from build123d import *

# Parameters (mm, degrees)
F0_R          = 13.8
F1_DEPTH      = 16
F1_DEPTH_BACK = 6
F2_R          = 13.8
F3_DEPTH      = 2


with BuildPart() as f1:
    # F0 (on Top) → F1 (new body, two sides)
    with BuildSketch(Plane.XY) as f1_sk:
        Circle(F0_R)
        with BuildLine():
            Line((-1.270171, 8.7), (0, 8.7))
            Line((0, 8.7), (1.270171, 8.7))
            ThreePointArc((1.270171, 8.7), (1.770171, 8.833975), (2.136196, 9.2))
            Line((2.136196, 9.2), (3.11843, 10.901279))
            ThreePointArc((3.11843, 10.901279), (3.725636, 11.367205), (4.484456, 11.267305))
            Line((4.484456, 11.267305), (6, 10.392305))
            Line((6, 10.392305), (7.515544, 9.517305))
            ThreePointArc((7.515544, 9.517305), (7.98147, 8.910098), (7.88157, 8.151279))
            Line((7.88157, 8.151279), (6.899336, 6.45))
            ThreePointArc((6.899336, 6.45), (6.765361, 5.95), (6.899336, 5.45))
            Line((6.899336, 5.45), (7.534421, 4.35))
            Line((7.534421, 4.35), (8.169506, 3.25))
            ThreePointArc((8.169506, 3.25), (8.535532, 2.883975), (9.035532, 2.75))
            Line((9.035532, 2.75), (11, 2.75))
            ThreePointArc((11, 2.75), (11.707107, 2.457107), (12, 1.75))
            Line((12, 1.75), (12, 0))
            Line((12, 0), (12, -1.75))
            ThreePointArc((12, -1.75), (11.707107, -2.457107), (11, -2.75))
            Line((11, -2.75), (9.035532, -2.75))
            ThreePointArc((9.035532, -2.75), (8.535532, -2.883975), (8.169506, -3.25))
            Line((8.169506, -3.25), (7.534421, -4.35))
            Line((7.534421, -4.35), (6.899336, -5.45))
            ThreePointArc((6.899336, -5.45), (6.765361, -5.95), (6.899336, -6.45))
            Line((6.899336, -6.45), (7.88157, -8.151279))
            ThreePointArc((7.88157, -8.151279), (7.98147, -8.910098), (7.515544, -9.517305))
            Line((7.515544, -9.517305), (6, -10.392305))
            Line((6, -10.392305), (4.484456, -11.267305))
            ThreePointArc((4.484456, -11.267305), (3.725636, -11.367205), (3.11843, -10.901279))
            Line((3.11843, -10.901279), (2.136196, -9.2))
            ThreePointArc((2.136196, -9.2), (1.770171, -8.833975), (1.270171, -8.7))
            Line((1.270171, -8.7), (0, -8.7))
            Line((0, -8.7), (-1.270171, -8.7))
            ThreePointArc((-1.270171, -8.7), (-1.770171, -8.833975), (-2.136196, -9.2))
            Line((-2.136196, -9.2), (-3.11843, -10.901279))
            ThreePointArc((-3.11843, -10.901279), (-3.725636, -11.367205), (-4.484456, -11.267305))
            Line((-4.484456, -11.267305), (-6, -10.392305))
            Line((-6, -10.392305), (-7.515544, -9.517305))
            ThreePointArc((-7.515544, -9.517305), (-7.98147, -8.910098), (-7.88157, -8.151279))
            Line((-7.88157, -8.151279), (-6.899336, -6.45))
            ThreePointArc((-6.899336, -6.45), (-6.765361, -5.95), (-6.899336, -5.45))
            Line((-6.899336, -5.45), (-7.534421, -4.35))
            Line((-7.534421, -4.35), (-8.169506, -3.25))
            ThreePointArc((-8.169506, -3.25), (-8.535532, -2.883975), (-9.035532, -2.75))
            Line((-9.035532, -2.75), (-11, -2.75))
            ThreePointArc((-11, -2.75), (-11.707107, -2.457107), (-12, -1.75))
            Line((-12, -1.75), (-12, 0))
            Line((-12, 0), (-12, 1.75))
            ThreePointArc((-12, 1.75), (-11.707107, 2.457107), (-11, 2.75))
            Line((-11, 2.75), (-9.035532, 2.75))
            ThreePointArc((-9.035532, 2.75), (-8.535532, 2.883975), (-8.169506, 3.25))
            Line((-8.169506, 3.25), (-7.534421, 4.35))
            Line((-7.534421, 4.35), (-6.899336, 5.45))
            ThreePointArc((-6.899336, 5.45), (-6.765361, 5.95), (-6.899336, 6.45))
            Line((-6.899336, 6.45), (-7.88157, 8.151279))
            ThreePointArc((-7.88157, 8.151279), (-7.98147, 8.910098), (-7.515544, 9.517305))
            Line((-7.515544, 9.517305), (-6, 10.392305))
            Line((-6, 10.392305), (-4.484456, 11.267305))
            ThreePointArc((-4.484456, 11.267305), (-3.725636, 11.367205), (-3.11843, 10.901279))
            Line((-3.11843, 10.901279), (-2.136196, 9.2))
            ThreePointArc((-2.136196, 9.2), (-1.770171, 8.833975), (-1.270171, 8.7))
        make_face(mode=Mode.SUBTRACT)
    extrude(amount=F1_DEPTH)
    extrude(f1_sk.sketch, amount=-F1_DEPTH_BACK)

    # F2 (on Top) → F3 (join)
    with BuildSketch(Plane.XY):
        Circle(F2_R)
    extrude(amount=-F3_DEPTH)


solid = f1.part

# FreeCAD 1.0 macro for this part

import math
import FreeCAD as App
import Part
import Sketcher
from FreeCAD import Vector
Q = App.Units.Quantity

doc = App.newDocument("Part")
body = doc.addObject("PartDesign::Body", "Body")

# Sketch on XY plane
sketch1 = body.newObject("Sketcher::SketchObject", "Sketch")
sketch1.AttachmentSupport = (doc.getObject("XY_Plane"), [""])
sketch1.MapMode = "FlatFace"
sketch1.addGeometry(Part.Circle(Vector(0, 0, 0), Vector(0, 0, 1), 13.8), False)
sketch1.addGeometry(Part.ArcOfCircle(Part.Circle(Vector(-1.3, 9.7, 0), Vector(0, 0, 1), 1), math.radians(-150), math.radians(-90)), False)
sketch1.addGeometry(Part.LineSegment(Vector(-1.3, 8.7, 0), Vector(1.3, 8.7, 0)), False)
sketch1.addGeometry(Part.ArcOfCircle(Part.Circle(Vector(1.3, 9.7, 0), Vector(0, 0, 1), 1), math.radians(-90), math.radians(-30)), False)
sketch1.addGeometry(Part.LineSegment(Vector(2.1, 9.2, 0), Vector(3.1, 10.9, 0)), False)
sketch1.addGeometry(Part.ArcOfCircle(Part.Circle(Vector(4, 10.4, 0), Vector(0, 0, 1), 1), math.radians(60), math.radians(150)), False)
sketch1.addGeometry(Part.LineSegment(Vector(4.5, 11.3, 0), Vector(7.5, 9.5, 0)), False)
sketch1.addGeometry(Part.ArcOfCircle(Part.Circle(Vector(7, 8.7, 0), Vector(0, 0, 1), 1), math.radians(-30), math.radians(60)), False)
sketch1.addGeometry(Part.LineSegment(Vector(7.9, 8.2, 0), Vector(6.9, 6.5, 0)), False)
sketch1.addGeometry(Part.ArcOfCircle(Part.Circle(Vector(7.8, 6, 0), Vector(0, 0, 1), 1), math.radians(150), math.radians(210)), False)
sketch1.addGeometry(Part.LineSegment(Vector(6.9, 5.5, 0), Vector(8.2, 3.2, 0)), False)
sketch1.addGeometry(Part.ArcOfCircle(Part.Circle(Vector(9, 3.8, 0), Vector(0, 0, 1), 1), math.radians(-150), math.radians(-90)), False)
sketch1.addGeometry(Part.LineSegment(Vector(9, 2.8, 0), Vector(11, 2.8, 0)), False)
sketch1.addGeometry(Part.ArcOfCircle(Part.Circle(Vector(11, 1.8, 0), Vector(0, 0, 1), 1), math.radians(0), math.radians(90)), False)
sketch1.addGeometry(Part.LineSegment(Vector(12, 1.8, 0), Vector(12, -1.8, 0)), False)
sketch1.addGeometry(Part.ArcOfCircle(Part.Circle(Vector(11, -1.8, 0), Vector(0, 0, 1), 1), math.radians(-90), math.radians(0)), False)
sketch1.addGeometry(Part.LineSegment(Vector(11, -2.8, 0), Vector(9, -2.8, 0)), False)
sketch1.addGeometry(Part.ArcOfCircle(Part.Circle(Vector(9, -3.8, 0), Vector(0, 0, 1), 1), math.radians(90), math.radians(150)), False)
sketch1.addGeometry(Part.LineSegment(Vector(8.2, -3.2, 0), Vector(6.9, -5.5, 0)), False)
sketch1.addGeometry(Part.ArcOfCircle(Part.Circle(Vector(7.8, -6, 0), Vector(0, 0, 1), 1), math.radians(150), math.radians(210)), False)
sketch1.addGeometry(Part.LineSegment(Vector(6.9, -6.5, 0), Vector(7.9, -8.2, 0)), False)
sketch1.addGeometry(Part.ArcOfCircle(Part.Circle(Vector(7, -8.7, 0), Vector(0, 0, 1), 1), math.radians(-60), math.radians(30)), False)
sketch1.addGeometry(Part.LineSegment(Vector(7.5, -9.5, 0), Vector(4.5, -11.3, 0)), False)
sketch1.addGeometry(Part.ArcOfCircle(Part.Circle(Vector(4, -10.4, 0), Vector(0, 0, 1), 1), math.radians(-150), math.radians(-60)), False)
sketch1.addGeometry(Part.LineSegment(Vector(3.1, -10.9, 0), Vector(2.1, -9.2, 0)), False)
sketch1.addGeometry(Part.ArcOfCircle(Part.Circle(Vector(1.3, -9.7, 0), Vector(0, 0, 1), 1), math.radians(30), math.radians(90)), False)
sketch1.addGeometry(Part.LineSegment(Vector(1.3, -8.7, 0), Vector(-1.3, -8.7, 0)), False)
sketch1.addGeometry(Part.ArcOfCircle(Part.Circle(Vector(-1.3, -9.7, 0), Vector(0, 0, 1), 1), math.radians(90), math.radians(150)), False)
sketch1.addGeometry(Part.LineSegment(Vector(-2.1, -9.2, 0), Vector(-3.1, -10.9, 0)), False)
sketch1.addGeometry(Part.ArcOfCircle(Part.Circle(Vector(-4, -10.4, 0), Vector(0, 0, 1), 1), math.radians(-120), math.radians(-30)), False)
sketch1.addGeometry(Part.LineSegment(Vector(-4.5, -11.3, 0), Vector(-7.5, -9.5, 0)), False)
sketch1.addGeometry(Part.ArcOfCircle(Part.Circle(Vector(-7, -8.7, 0), Vector(0, 0, 1), 1), math.radians(150), math.radians(240)), False)
sketch1.addGeometry(Part.LineSegment(Vector(-7.9, -8.2, 0), Vector(-6.9, -6.5, 0)), False)
sketch1.addGeometry(Part.ArcOfCircle(Part.Circle(Vector(-7.8, -6, 0), Vector(0, 0, 1), 1), math.radians(-30), math.radians(30)), False)
sketch1.addGeometry(Part.LineSegment(Vector(-6.9, -5.5, 0), Vector(-8.2, -3.2, 0)), False)
sketch1.addGeometry(Part.ArcOfCircle(Part.Circle(Vector(-9, -3.8, 0), Vector(0, 0, 1), 1), math.radians(30), math.radians(90)), False)
sketch1.addGeometry(Part.LineSegment(Vector(-9, -2.8, 0), Vector(-11, -2.8, 0)), False)
sketch1.addGeometry(Part.ArcOfCircle(Part.Circle(Vector(-11, -1.8, 0), Vector(0, 0, 1), 1), math.radians(180), math.radians(270)), False)
sketch1.addGeometry(Part.LineSegment(Vector(-12, -1.8, 0), Vector(-12, 1.8, 0)), False)
sketch1.addGeometry(Part.ArcOfCircle(Part.Circle(Vector(-11, 1.8, 0), Vector(0, 0, 1), 1), math.radians(90), math.radians(180)), False)
sketch1.addGeometry(Part.LineSegment(Vector(-11, 2.8, 0), Vector(-9, 2.8, 0)), False)
sketch1.addGeometry(Part.ArcOfCircle(Part.Circle(Vector(-9, 3.8, 0), Vector(0, 0, 1), 1), math.radians(-90), math.radians(-30)), False)
sketch1.addGeometry(Part.LineSegment(Vector(-8.2, 3.2, 0), Vector(-6.9, 5.5, 0)), False)
sketch1.addGeometry(Part.ArcOfCircle(Part.Circle(Vector(-7.8, 6, 0), Vector(0, 0, 1), 1), math.radians(-30), math.radians(30)), False)
sketch1.addGeometry(Part.LineSegment(Vector(-6.9, 6.5, 0), Vector(-7.9, 8.2, 0)), False)
sketch1.addGeometry(Part.ArcOfCircle(Part.Circle(Vector(-7, 8.7, 0), Vector(0, 0, 1), 1), math.radians(120), math.radians(210)), False)
sketch1.addGeometry(Part.LineSegment(Vector(-7.5, 9.5, 0), Vector(-4.5, 11.3, 0)), False)
sketch1.addGeometry(Part.ArcOfCircle(Part.Circle(Vector(-4, 10.4, 0), Vector(0, 0, 1), 1), math.radians(30), math.radians(120)), False)
sketch1.addGeometry(Part.LineSegment(Vector(-3.1, 10.9, 0), Vector(-2.1, 9.2, 0)), False)
sketch1.addConstraint(Sketcher.Constraint("Tangent", 1, 2, 2, 1))
sketch1.addConstraint(Sketcher.Constraint("Tangent", 2, 2, 3, 1))
sketch1.addConstraint(Sketcher.Constraint("Tangent", 3, 2, 4, 1))
sketch1.addConstraint(Sketcher.Constraint("Tangent", 4, 2, 5, 2))
sketch1.addConstraint(Sketcher.Constraint("Tangent", 5, 1, 6, 1))
sketch1.addConstraint(Sketcher.Constraint("Tangent", 6, 2, 7, 2))
sketch1.addConstraint(Sketcher.Constraint("Tangent", 7, 1, 8, 1))
sketch1.addConstraint(Sketcher.Constraint("Tangent", 8, 2, 9, 1))
sketch1.addConstraint(Sketcher.Constraint("Tangent", 9, 2, 10, 1))
sketch1.addConstraint(Sketcher.Constraint("Coincident", 10, 2, 11, 1))
sketch1.addConstraint(Sketcher.Constraint("Tangent", 11, 2, 12, 1))
sketch1.addConstraint(Sketcher.Constraint("Tangent", 12, 2, 13, 2))
sketch1.addConstraint(Sketcher.Constraint("Tangent", 13, 1, 14, 1))
sketch1.addConstraint(Sketcher.Constraint("Tangent", 14, 2, 15, 2))
sketch1.addConstraint(Sketcher.Constraint("Tangent", 15, 1, 16, 1))
sketch1.addConstraint(Sketcher.Constraint("Tangent", 16, 2, 17, 1))
sketch1.addConstraint(Sketcher.Constraint("Coincident", 17, 2, 18, 1))
sketch1.addConstraint(Sketcher.Constraint("Tangent", 18, 2, 19, 1))
sketch1.addConstraint(Sketcher.Constraint("Tangent", 19, 2, 20, 1))
sketch1.addConstraint(Sketcher.Constraint("Tangent", 20, 2, 21, 2))
sketch1.addConstraint(Sketcher.Constraint("Tangent", 21, 1, 22, 1))
sketch1.addConstraint(Sketcher.Constraint("Tangent", 22, 2, 23, 2))
sketch1.addConstraint(Sketcher.Constraint("Tangent", 23, 1, 24, 1))
sketch1.addConstraint(Sketcher.Constraint("Tangent", 24, 2, 25, 1))
sketch1.addConstraint(Sketcher.Constraint("Tangent", 25, 2, 26, 1))
sketch1.addConstraint(Sketcher.Constraint("Tangent", 26, 2, 27, 1))
sketch1.addConstraint(Sketcher.Constraint("Tangent", 27, 2, 28, 1))
sketch1.addConstraint(Sketcher.Constraint("Tangent", 28, 2, 29, 2))
sketch1.addConstraint(Sketcher.Constraint("Tangent", 29, 1, 30, 1))
sketch1.addConstraint(Sketcher.Constraint("Tangent", 30, 2, 31, 2))
sketch1.addConstraint(Sketcher.Constraint("Tangent", 31, 1, 32, 1))
sketch1.addConstraint(Sketcher.Constraint("Tangent", 32, 2, 33, 1))
sketch1.addConstraint(Sketcher.Constraint("Tangent", 33, 2, 34, 1))
sketch1.addConstraint(Sketcher.Constraint("Coincident", 34, 2, 35, 1))
sketch1.addConstraint(Sketcher.Constraint("Tangent", 35, 2, 36, 1))
sketch1.addConstraint(Sketcher.Constraint("Tangent", 36, 2, 37, 2))
sketch1.addConstraint(Sketcher.Constraint("Tangent", 37, 1, 38, 1))
sketch1.addConstraint(Sketcher.Constraint("Tangent", 38, 2, 39, 2))
sketch1.addConstraint(Sketcher.Constraint("Tangent", 39, 1, 40, 1))
sketch1.addConstraint(Sketcher.Constraint("Tangent", 40, 2, 41, 1))
sketch1.addConstraint(Sketcher.Constraint("Coincident", 41, 2, 42, 1))
sketch1.addConstraint(Sketcher.Constraint("Tangent", 42, 2, 43, 1))
sketch1.addConstraint(Sketcher.Constraint("Tangent", 43, 2, 44, 1))
sketch1.addConstraint(Sketcher.Constraint("Tangent", 44, 2, 45, 2))
sketch1.addConstraint(Sketcher.Constraint("Tangent", 45, 1, 46, 1))
sketch1.addConstraint(Sketcher.Constraint("Tangent", 46, 2, 47, 2))
sketch1.addConstraint(Sketcher.Constraint("Tangent", 47, 1, 48, 1))
sketch1.addConstraint(Sketcher.Constraint("Tangent", 48, 2, 1, 1))
sketch1.addConstraint(Sketcher.Constraint("Horizontal", 2))
sketch1.addConstraint(Sketcher.Constraint("Horizontal", 12))
sketch1.addConstraint(Sketcher.Constraint("Vertical", 14))
sketch1.addConstraint(Sketcher.Constraint("Horizontal", 16))
sketch1.addConstraint(Sketcher.Constraint("Horizontal", 26))
sketch1.addConstraint(Sketcher.Constraint("Horizontal", 36))
sketch1.addConstraint(Sketcher.Constraint("Vertical", 38))
sketch1.addConstraint(Sketcher.Constraint("Horizontal", 40))
sketch1.addConstraint(Sketcher.Constraint("Coincident", 0, 3, -1, 1))
sketch1.addConstraint(Sketcher.Constraint("Equal", 1, 3))
sketch1.addConstraint(Sketcher.Constraint("Equal", 3, 5))
sketch1.addConstraint(Sketcher.Constraint("Equal", 5, 7))
sketch1.addConstraint(Sketcher.Constraint("Equal", 9, 13))
sketch1.addConstraint(Sketcher.Constraint("Equal", 13, 15))
sketch1.addConstraint(Sketcher.Constraint("Equal", 11, 17))
sketch1.addConstraint(Sketcher.Constraint("Equal", 15, 19))
sketch1.addConstraint(Sketcher.Constraint("Equal", 7, 21))
sketch1.addConstraint(Sketcher.Constraint("Equal", 21, 23))
sketch1.addConstraint(Sketcher.Constraint("Equal", 23, 25))
sketch1.addConstraint(Sketcher.Constraint("Equal", 25, 27))
sketch1.addConstraint(Sketcher.Constraint("Equal", 27, 29))
sketch1.addConstraint(Sketcher.Constraint("Equal", 29, 31))
sketch1.addConstraint(Sketcher.Constraint("Equal", 19, 33))
sketch1.addConstraint(Sketcher.Constraint("Equal", 17, 35))
sketch1.addConstraint(Sketcher.Constraint("Equal", 33, 37))
sketch1.addConstraint(Sketcher.Constraint("Equal", 37, 39))
sketch1.addConstraint(Sketcher.Constraint("Equal", 35, 41))
sketch1.addConstraint(Sketcher.Constraint("Equal", 39, 43))
sketch1.addConstraint(Sketcher.Constraint("Equal", 31, 45))
sketch1.addConstraint(Sketcher.Constraint("Equal", 45, 47))
sketch1.addConstraint(Sketcher.Constraint("Symmetric", 1, 3, 25, 3, -1, 1))
sketch1.addConstraint(Sketcher.Constraint("Symmetric", 5, 3, 29, 3, -1, 1))
sketch1.addConstraint(Sketcher.Constraint("Symmetric", 7, 3, 31, 3, -1, 1))
sketch1.addConstraint(Sketcher.Constraint("Symmetric", 9, 3, 33, 3, -1, 1))
sketch1.addConstraint(Sketcher.Constraint("Symmetric", 11, 3, 35, 3, -1, 1))
sketch1.addConstraint(Sketcher.Constraint("Symmetric", 15, 3, 39, 3, -1, 1))
sketch1.addConstraint(Sketcher.Constraint("Symmetric", 19, 3, 43, 3, -1, 1))
sketch1.addConstraint(Sketcher.Constraint("Symmetric", 21, 3, 45, 3, -1, 1))
sketch1.addConstraint(Sketcher.Constraint("Symmetric", 23, 3, 47, 3, -1, 1))
sketch1.addConstraint(Sketcher.Constraint("Symmetric", 17, 2, 41, 2, -1, 1))
sketch1.addConstraint(Sketcher.Constraint("Symmetric", 23, 3, 29, 3, -2))
sketch1.addConstraint(Sketcher.Constraint("Symmetric", 21, 3, 31, 3, -2))
sketch1.addConstraint(Sketcher.Constraint("Symmetric", 19, 3, 33, 3, -2))
sketch1.addConstraint(Sketcher.Constraint("Symmetric", 17, 3, 35, 3, -2))
sketch1.addConstraint(Sketcher.Constraint("Perpendicular", 4, 6))
sketch1.addConstraint(Sketcher.Constraint("Perpendicular", 6, 8))
sketch1.addConstraint(Sketcher.Constraint("Parallel", 8, 18))
sketch1.addConstraint(Sketcher.Constraint("Perpendicular", 22, 24))
sketch1.addConstraint(Sketcher.Constraint("Parallel", 18, 28))
sketch1.addConstraint(Sketcher.Constraint("Horizontal", 17, 2, 34, 2))
sketch1.addConstraint(Sketcher.Constraint("Horizontal", 10, 2, 41, 2))
sketch1.addConstraint(Sketcher.Constraint("Equal", 4, 8))
sketch1.addConstraint(Sketcher.Constraint("Radius", 1, Q("1.000001 mm")))
sketch1.addConstraint(Sketcher.Constraint("Radius", 13, Q("0.999999 mm")))
sketch1.addConstraint(Sketcher.Constraint("Diameter", 0, Q("27.6 mm")))
sketch1.addConstraint(Sketcher.Constraint("Angle", 4, Q("59.999997 deg")))
sketch1.addConstraint(Sketcher.Constraint("DistanceY", 14, 2, 14, 1, Q("3.5 mm")))
sketch1.addConstraint(Sketcher.Constraint("DistanceX", -1, 1, 13, 3, Q("11.000001 mm")))
sketch1.addConstraint(Sketcher.Constraint("Distance", 6, Q("3.499999 mm")))
sketch1.addConstraint(Sketcher.Constraint("DistanceY", -1, 1, 1, 3, Q("9.700001 mm")))
sketch1.addConstraint(Sketcher.Constraint("DistanceY", -1, 1, 10, 2, Q("3.25 mm")))
sketch1.addConstraint(Sketcher.Constraint("Radius", 11, Q("1.000004 mm")))
sketch1.addConstraint(Sketcher.Constraint("DistanceX", 2, 1, 2, 2, Q("2.540342 mm")))
sketch1.addConstraint(Sketcher.Constraint("DistanceY", -1, 1, 5, 3, Q("10.401279 mm")))
pad1 = body.newObject("PartDesign::Pad", "Pad")
pad1.Profile = sketch1
pad1.Type = "TwoLengths"
pad1.Length = 16
pad1.Length2 = 6

# Sketch on XY plane
sketch2 = body.newObject("Sketcher::SketchObject", "Sketch001")
sketch2.AttachmentSupport = (doc.getObject("XY_Plane"), [""])
sketch2.MapMode = "FlatFace"
sketch2.addGeometry(Part.Circle(Vector(0, 0, 0), Vector(0, 0, 1), 14), False)
sketch2.addConstraint(Sketcher.Constraint("Coincident", 0, 3, -1, 1))
sketch2.addConstraint(Sketcher.Constraint("Diameter", 0, Q("27.6 mm")))
pad2 = body.newObject("PartDesign::Pad", "Pad001")
pad2.Profile = sketch2
pad2.Length = 2
pad2.Reversed = True

doc.recompute()
